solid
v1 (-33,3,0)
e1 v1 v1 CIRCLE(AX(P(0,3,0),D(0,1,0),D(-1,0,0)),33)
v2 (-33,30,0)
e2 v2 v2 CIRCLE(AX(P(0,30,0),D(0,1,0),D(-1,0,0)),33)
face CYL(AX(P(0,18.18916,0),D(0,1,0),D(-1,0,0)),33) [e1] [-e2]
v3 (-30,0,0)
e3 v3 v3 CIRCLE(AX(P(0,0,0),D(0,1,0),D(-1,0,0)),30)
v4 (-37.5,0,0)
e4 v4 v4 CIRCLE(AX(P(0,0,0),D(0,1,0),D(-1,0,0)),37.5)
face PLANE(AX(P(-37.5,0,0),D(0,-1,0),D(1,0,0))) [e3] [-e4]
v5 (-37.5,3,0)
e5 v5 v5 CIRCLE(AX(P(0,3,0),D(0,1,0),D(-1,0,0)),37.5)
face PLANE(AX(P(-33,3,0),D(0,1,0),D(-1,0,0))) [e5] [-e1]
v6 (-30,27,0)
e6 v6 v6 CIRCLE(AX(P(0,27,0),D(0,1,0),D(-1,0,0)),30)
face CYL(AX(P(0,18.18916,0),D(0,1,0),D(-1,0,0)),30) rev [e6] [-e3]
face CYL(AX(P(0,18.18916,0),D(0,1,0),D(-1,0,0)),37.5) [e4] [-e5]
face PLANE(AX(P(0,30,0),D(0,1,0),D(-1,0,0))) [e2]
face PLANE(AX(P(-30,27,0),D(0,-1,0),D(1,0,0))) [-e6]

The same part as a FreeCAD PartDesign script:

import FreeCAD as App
import Part
import Sketcher

doc = App.newDocument("Part")
params = doc.addObject("Spreadsheet::Sheet", "Params")
for row, (alias, value) in enumerate([
    ("sketch1_width", "30 mm"),
    ("sketch1_width2", "33 mm"),
    ("sketch1_height", "27 mm"),
    ("sketch1_height2", "3 mm"),
    ("sketch1_width3", "7.5 mm"),
    ("revolution_angle", "360 deg"),
], start=1):
    params.set(f"A{row}", alias)
    params.set(f"B{row}", "=" + value)
    params.setAlias(f"B{row}", alias)

body = doc.addObject("PartDesign::Body", "Body")

sketch1 = body.newObject("Sketcher::SketchObject", "Sketch")
sketch1.AttachmentSupport = (doc.getObject("XY_Plane"), [""])
sketch1.MapMode = "FlatFace"
sketch1.addGeometry(Part.LineSegment(App.Vector(-37.5, 0, 0), App.Vector(-30, 0, 0)), False)
sketch1.addGeometry(Part.LineSegment(App.Vector(-30, 0, 0), App.Vector(-30, 27, 0)), False)
sketch1.addGeometry(Part.LineSegment(App.Vector(-30, 27, 0), App.Vector(0, 27, 0)), False)
sketch1.addGeometry(Part.LineSegment(App.Vector(0, 27, 0), App.Vector(0, 30, 0)), False)
sketch1.addGeometry(Part.LineSegment(App.Vector(0, 30, 0), App.Vector(-33, 30, 0)), False)
sketch1.addGeometry(Part.LineSegment(App.Vector(-33, 30, 0), App.Vector(-33, 3, 0)), False)
sketch1.addGeometry(Part.LineSegment(App.Vector(-33, 3, 0), App.Vector(-37.5, 3, 0)), False)
sketch1.addGeometry(Part.LineSegment(App.Vector(-37.5, 3, 0), App.Vector(-37.5, 0, 0)), False)
sketch1.addConstraint(Sketcher.Constraint("Coincident", 0, 2, 1, 1))
sketch1.addConstraint(Sketcher.Constraint("Coincident", 1, 2, 2, 1))
sketch1.addConstraint(Sketcher.Constraint("Coincident", 2, 2, 3, 1))
sketch1.addConstraint(Sketcher.Constraint("Coincident", 3, 2, 4, 1))
sketch1.addConstraint(Sketcher.Constraint("Coincident", 4, 2, 5, 1))
sketch1.addConstraint(Sketcher.Constraint("Coincident", 5, 2, 6, 1))
sketch1.addConstraint(Sketcher.Constraint("Coincident", 6, 2, 7, 1))
sketch1.addConstraint(Sketcher.Constraint("Coincident", 7, 2, 0, 1))
sketch1.addConstraint(Sketcher.Constraint("Horizontal", 0))
sketch1.addConstraint(Sketcher.Constraint("Vertical", 1))
sketch1.addConstraint(Sketcher.Constraint("Horizontal", 2))
sketch1.addConstraint(Sketcher.Constraint("Vertical", 3))
sketch1.addConstraint(Sketcher.Constraint("Horizontal", 4))
sketch1.addConstraint(Sketcher.Constraint("Vertical", 5))
sketch1.addConstraint(Sketcher.Constraint("Horizontal", 6))
sketch1.addConstraint(Sketcher.Constraint("Vertical", 7))
sketch1.addConstraint(Sketcher.Constraint("PointOnObject", 0, 2, -1))
sketch1.addConstraint(Sketcher.Constraint("PointOnObject", 2, 2, -2))
sketch1.addConstraint(Sketcher.Constraint("Equal", 1, 5))
sketch1.addConstraint(Sketcher.Constraint("DistanceX", 2, 1, 2, 2, 30.0))
sketch1.addConstraint(Sketcher.Constraint("DistanceX", 4, 2, 4, 1, 33.0))
sketch1.addConstraint(Sketcher.Constraint("DistanceY", 1, 1, 1, 2, 27.0))
sketch1.addConstraint(Sketcher.Constraint("DistanceY", 3, 1, 3, 2, 3.0))
sketch1.addConstraint(Sketcher.Constraint("DistanceX", 0, 1, 0, 2, 7.5))
sketch1.setExpression("Constraints[19]", "Params.sketch1_width")
sketch1.setExpression("Constraints[20]", "Params.sketch1_width2")
sketch1.setExpression("Constraints[21]", "Params.sketch1_height")
sketch1.setExpression("Constraints[22]", "Params.sketch1_height2")
sketch1.setExpression("Constraints[23]", "Params.sketch1_width3")
revolution = body.newObject("PartDesign::Revolution", "Revolution")
revolution.Profile = sketch1
revolution.ReferenceAxis = (sketch1, ["V_Axis"])
revolution.setExpression("Angle", "Params.revolution_angle")

doc.recompute()
